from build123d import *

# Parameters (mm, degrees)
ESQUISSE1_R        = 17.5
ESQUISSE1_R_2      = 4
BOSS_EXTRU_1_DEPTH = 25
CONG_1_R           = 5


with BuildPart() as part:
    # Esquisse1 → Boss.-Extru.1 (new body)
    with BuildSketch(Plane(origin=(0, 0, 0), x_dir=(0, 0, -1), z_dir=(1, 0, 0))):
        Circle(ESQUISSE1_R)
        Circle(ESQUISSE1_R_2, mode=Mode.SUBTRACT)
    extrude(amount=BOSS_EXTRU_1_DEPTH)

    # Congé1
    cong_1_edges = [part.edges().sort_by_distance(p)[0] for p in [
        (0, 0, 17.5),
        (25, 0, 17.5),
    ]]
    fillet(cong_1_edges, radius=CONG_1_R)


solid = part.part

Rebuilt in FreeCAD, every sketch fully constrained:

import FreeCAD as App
import Part
import Sketcher
from FreeCAD import Vector


def edges_at(feature, points):
    """Names of the edges that pass closest to the given points."""
    edges = feature.Shape.Edges
    near = lambda p: min(range(len(edges)), key=lambda i: edges[i].distToShape(Part.Vertex(*p))[0])
    return sorted({f"Edge{near(p) + 1}" for p in points})

doc = App.newDocument("Part")
body = doc.addObject("PartDesign::Body", "Body")

# Sketch on YZ plane
sketch1 = doc.addObject("Sketcher::SketchObject", "Sketch")
body.addObject(sketch1)
sketch1.AttachmentSupport = (doc.YZ_Plane, [""])
sketch1.MapMode = "FlatFace"
sketch1.addGeometry([
    Part.Circle(Vector(0, 0, 0), Vector(0, 0, 1), 17.5),
    Part.Circle(Vector(0, 0, 0), Vector(0, 0, 1), 4),
], False)
sketch1.addConstraint([
    Sketcher.Constraint("Coincident", 0, 3, -1, 1),
    Sketcher.Constraint("Coincident", 1, 3, -1, 1),
    Sketcher.Constraint("Diameter", 0, 35.0),
    Sketcher.Constraint("Diameter", 1, 8.0),
])
pad1 = doc.addObject("PartDesign::Pad", "Pad")
body.addObject(pad1)
pad1.Profile = sketch1
pad1.Length = 25
doc.recompute()

fillet = doc.addObject("PartDesign::Fillet", "Fillet")
body.addObject(fillet)
fillet.Base = (pad1, edges_at(pad1, [(0, 0, 17.5), (25, 0, 17.5)]))
fillet.Radius = 5

doc.recompute()
